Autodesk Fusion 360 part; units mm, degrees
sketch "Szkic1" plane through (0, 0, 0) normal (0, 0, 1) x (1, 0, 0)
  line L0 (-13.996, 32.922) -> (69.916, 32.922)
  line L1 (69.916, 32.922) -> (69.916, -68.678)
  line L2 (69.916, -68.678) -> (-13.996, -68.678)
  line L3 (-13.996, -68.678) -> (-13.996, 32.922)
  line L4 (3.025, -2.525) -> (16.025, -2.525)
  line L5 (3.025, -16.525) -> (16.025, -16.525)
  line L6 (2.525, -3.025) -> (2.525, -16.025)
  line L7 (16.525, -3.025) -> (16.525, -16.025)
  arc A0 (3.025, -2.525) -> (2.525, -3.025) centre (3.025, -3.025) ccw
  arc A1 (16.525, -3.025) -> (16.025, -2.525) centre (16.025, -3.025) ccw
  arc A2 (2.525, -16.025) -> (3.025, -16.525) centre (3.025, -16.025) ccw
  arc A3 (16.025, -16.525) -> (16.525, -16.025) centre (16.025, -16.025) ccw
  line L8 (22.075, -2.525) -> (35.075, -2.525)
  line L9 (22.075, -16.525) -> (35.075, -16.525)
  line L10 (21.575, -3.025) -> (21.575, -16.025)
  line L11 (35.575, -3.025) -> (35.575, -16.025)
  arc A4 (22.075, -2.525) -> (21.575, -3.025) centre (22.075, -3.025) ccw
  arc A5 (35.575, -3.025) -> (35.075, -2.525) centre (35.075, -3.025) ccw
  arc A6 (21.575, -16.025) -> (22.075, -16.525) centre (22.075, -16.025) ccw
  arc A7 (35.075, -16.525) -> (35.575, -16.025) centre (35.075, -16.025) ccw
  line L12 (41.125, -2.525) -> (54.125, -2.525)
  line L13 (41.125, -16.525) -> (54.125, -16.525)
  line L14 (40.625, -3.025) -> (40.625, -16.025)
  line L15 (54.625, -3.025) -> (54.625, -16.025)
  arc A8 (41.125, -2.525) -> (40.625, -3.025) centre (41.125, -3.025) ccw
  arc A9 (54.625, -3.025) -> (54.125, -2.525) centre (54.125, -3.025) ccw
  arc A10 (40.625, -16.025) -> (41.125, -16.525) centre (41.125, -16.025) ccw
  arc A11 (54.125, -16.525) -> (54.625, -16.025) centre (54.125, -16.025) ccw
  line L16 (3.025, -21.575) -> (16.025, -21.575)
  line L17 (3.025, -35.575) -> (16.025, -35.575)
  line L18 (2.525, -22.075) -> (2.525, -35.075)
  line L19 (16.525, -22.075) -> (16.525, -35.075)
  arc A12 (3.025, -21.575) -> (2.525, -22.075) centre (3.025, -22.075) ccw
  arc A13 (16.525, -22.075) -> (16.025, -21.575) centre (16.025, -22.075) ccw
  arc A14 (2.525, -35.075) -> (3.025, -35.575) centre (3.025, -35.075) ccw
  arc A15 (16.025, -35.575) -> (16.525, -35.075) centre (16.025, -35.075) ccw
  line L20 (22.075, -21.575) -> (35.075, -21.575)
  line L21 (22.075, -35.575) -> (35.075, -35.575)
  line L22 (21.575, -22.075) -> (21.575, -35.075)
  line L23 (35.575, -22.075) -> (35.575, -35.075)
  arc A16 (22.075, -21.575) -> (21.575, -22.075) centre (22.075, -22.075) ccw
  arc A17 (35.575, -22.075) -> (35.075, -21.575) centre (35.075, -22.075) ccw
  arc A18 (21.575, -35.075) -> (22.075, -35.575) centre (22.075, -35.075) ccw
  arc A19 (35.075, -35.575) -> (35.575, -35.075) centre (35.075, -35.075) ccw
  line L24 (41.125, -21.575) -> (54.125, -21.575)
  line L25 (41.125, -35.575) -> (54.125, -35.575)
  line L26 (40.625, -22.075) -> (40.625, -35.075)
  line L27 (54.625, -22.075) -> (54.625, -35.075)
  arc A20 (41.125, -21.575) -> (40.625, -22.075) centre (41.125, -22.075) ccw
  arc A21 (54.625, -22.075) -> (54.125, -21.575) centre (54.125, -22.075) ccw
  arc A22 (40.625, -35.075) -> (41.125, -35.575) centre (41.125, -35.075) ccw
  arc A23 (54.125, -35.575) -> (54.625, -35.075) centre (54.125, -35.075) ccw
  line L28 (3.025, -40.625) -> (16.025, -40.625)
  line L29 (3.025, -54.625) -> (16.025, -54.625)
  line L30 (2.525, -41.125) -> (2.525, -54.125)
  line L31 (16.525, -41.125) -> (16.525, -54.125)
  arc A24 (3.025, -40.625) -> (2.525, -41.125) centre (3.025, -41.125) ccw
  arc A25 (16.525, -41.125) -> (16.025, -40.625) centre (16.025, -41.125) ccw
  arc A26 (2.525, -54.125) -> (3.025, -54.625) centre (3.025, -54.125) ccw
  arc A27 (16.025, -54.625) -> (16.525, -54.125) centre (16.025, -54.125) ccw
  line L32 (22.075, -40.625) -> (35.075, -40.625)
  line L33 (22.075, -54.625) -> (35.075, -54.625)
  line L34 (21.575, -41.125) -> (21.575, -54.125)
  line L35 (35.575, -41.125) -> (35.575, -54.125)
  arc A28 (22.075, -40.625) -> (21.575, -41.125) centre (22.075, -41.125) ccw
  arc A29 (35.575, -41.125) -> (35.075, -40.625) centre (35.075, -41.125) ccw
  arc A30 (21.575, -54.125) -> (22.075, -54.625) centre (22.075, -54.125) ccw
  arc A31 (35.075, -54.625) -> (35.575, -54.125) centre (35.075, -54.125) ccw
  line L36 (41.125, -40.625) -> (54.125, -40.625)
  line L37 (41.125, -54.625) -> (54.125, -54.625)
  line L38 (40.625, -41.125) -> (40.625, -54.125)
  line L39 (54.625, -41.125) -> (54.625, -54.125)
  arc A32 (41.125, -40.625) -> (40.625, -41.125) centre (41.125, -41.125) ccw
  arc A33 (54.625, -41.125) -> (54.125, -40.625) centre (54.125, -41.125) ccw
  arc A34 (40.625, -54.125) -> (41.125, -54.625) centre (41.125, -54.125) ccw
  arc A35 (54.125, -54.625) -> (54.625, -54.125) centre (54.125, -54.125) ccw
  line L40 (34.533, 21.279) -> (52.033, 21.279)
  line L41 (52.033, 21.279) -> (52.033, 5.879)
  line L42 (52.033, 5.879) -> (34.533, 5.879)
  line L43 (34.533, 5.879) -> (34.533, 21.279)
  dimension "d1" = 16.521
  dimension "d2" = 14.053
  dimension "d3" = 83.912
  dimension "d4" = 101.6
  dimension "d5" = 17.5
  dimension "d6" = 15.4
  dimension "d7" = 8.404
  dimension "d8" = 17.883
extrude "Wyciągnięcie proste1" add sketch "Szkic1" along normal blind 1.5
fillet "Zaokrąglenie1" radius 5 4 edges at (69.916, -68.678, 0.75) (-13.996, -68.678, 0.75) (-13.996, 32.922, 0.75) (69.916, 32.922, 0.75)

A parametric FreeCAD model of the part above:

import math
import FreeCAD as App
import Part
import Sketcher

V = App.Vector
Q = App.Units.Quantity


def edges_at(feature, points):
    """Names of the edges that pass closest to the given points."""
    edges = feature.Shape.Edges
    near = lambda p: min(range(len(edges)), key=lambda i: edges[i].distToShape(Part.Vertex(*p))[0])
    return sorted({f"Edge{near(p) + 1}" for p in points})


def add_polygon(sketch, points):
    """Adds a closed chain of lines whose ends are joined by coincident constraints."""
    first, n = sketch.GeometryCount, len(points)
    for a, b in zip(points, points[1:] + points[:1]):
        sketch.addGeometry(Part.LineSegment(App.Vector(*a, 0), App.Vector(*b, 0)), False)
    for i in range(n):
        sketch.addConstraint(Sketcher.Constraint("Coincident", first + i, 2, first + (i + 1) % n, 1))

doc = App.newDocument("Part")
body = doc.addObject("PartDesign::Body", "Body")

sketch1 = body.newObject("Sketcher::SketchObject", "Sketch")
sketch1.AttachmentSupport = (doc.getObject("XY_Plane"), [""])
sketch1.MapMode = "FlatFace"
add_polygon(sketch1, [(69.9, 32.9), (-14, 32.9), (-14, -68.7), (69.9, -68.7)])
sketch1.addGeometry(Part.ArcOfCircle(Part.Circle(V(3, -41.1, 0), V(0, 0, 1), 0.5), math.radians(90), math.radians(180)), False)
sketch1.addGeometry(Part.LineSegment(V(3, -40.6, 0), V(16, -40.6, 0)), False)
sketch1.addGeometry(Part.ArcOfCircle(Part.Circle(V(16, -41.1, 0), V(0, 0, 1), 0.5), math.radians(0), math.radians(90)), False)
sketch1.addGeometry(Part.LineSegment(V(16.5, -41.1, 0), V(16.5, -54.1, 0)), False)
sketch1.addGeometry(Part.ArcOfCircle(Part.Circle(V(16, -54.1, 0), V(0, 0, 1), 0.5), math.radians(-90), math.radians(0)), False)
sketch1.addGeometry(Part.LineSegment(V(16, -54.6, 0), V(3, -54.6, 0)), False)
sketch1.addGeometry(Part.ArcOfCircle(Part.Circle(V(3, -54.1, 0), V(0, 0, 1), 0.5), math.radians(180), math.radians(270)), False)
sketch1.addGeometry(Part.LineSegment(V(2.5, -54.1, 0), V(2.5, -41.1, 0)), False)
sketch1.addGeometry(Part.ArcOfCircle(Part.Circle(V(3, -22.1, 0), V(0, 0, 1), 0.5), math.radians(90), math.radians(180)), False)
sketch1.addGeometry(Part.LineSegment(V(3, -21.6, 0), V(16, -21.6, 0)), False)
sketch1.addGeometry(Part.ArcOfCircle(Part.Circle(V(16, -22.1, 0), V(0, 0, 1), 0.5), math.radians(0), math.radians(90)), False)
sketch1.addGeometry(Part.LineSegment(V(16.5, -22.1, 0), V(16.5, -35.1, 0)), False)
sketch1.addGeometry(Part.ArcOfCircle(Part.Circle(V(16, -35.1, 0), V(0, 0, 1), 0.5), math.radians(-90), math.radians(0)), False)
sketch1.addGeometry(Part.LineSegment(V(16, -35.6, 0), V(3, -35.6, 0)), False)
sketch1.addGeometry(Part.ArcOfCircle(Part.Circle(V(3, -35.1, 0), V(0, 0, 1), 0.5), math.radians(180), math.radians(270)), False)
sketch1.addGeometry(Part.LineSegment(V(2.5, -35.1, 0), V(2.5, -22.1, 0)), False)
sketch1.addGeometry(Part.ArcOfCircle(Part.Circle(V(22.1, -41.1, 0), V(0, 0, 1), 0.5), math.radians(90), math.radians(180)), False)
sketch1.addGeometry(Part.LineSegment(V(22.1, -40.6, 0), V(35.1, -40.6, 0)), False)
sketch1.addGeometry(Part.ArcOfCircle(Part.Circle(V(35.1, -41.1, 0), V(0, 0, 1), 0.5), math.radians(0), math.radians(90)), False)
sketch1.addGeometry(Part.LineSegment(V(35.6, -41.1, 0), V(35.6, -54.1, 0)), False)
sketch1.addGeometry(Part.ArcOfCircle(Part.Circle(V(35.1, -54.1, 0), V(0, 0, 1), 0.5), math.radians(-90), math.radians(0)), False)
sketch1.addGeometry(Part.LineSegment(V(35.1, -54.6, 0), V(22.1, -54.6, 0)), False)
sketch1.addGeometry(Part.ArcOfCircle(Part.Circle(V(22.1, -54.1, 0), V(0, 0, 1), 0.5), math.radians(180), math.radians(270)), False)
sketch1.addGeometry(Part.LineSegment(V(21.6, -54.1, 0), V(21.6, -41.1, 0)), False)
sketch1.addGeometry(Part.ArcOfCircle(Part.Circle(V(41.1, -41.1, 0), V(0, 0, 1), 0.5), math.radians(90), math.radians(180)), False)
sketch1.addGeometry(Part.LineSegment(V(41.1, -40.6, 0), V(54.1, -40.6, 0)), False)
sketch1.addGeometry(Part.ArcOfCircle(Part.Circle(V(54.1, -41.1, 0), V(0, 0, 1), 0.5), math.radians(0), math.radians(90)), False)
sketch1.addGeometry(Part.LineSegment(V(54.6, -41.1, 0), V(54.6, -54.1, 0)), False)
sketch1.addGeometry(Part.ArcOfCircle(Part.Circle(V(54.1, -54.1, 0), V(0, 0, 1), 0.5), math.radians(-90), math.radians(0)), False)
sketch1.addGeometry(Part.LineSegment(V(54.1, -54.6, 0), V(41.1, -54.6, 0)), False)
sketch1.addGeometry(Part.ArcOfCircle(Part.Circle(V(41.1, -54.1, 0), V(0, 0, 1), 0.5), math.radians(180), math.radians(270)), False)
sketch1.addGeometry(Part.LineSegment(V(40.6, -54.1, 0), V(40.6, -41.1, 0)), False)
sketch1.addGeometry(Part.ArcOfCircle(Part.Circle(V(22.1, -22.1, 0), V(0, 0, 1), 0.5), math.radians(90), math.radians(180)), False)
sketch1.addGeometry(Part.LineSegment(V(22.1, -21.6, 0), V(35.1, -21.6, 0)), False)
sketch1.addGeometry(Part.ArcOfCircle(Part.Circle(V(35.1, -22.1, 0), V(0, 0, 1), 0.5), math.radians(0), math.radians(90)), False)
sketch1.addGeometry(Part.LineSegment(V(35.6, -22.1, 0), V(35.6, -35.1, 0)), False)
sketch1.addGeometry(Part.ArcOfCircle(Part.Circle(V(35.1, -35.1, 0), V(0, 0, 1), 0.5), math.radians(-90), math.radians(0)), False)
sketch1.addGeometry(Part.LineSegment(V(35.1, -35.6, 0), V(22.1, -35.6, 0)), False)
sketch1.addGeometry(Part.ArcOfCircle(Part.Circle(V(22.1, -35.1, 0), V(0, 0, 1), 0.5), math.radians(180), math.radians(270)), False)
sketch1.addGeometry(Part.LineSegment(V(21.6, -35.1, 0), V(21.6, -22.1, 0)), False)
sketch1.addGeometry(Part.ArcOfCircle(Part.Circle(V(41.1, -22.1, 0), V(0, 0, 1), 0.5), math.radians(90), math.radians(180)), False)
sketch1.addGeometry(Part.LineSegment(V(41.1, -21.6, 0), V(54.1, -21.6, 0)), False)
sketch1.addGeometry(Part.ArcOfCircle(Part.Circle(V(54.1, -22.1, 0), V(0, 0, 1), 0.5), math.radians(0), math.radians(90)), False)
sketch1.addGeometry(Part.LineSegment(V(54.6, -22.1, 0), V(54.6, -35.1, 0)), False)
sketch1.addGeometry(Part.ArcOfCircle(Part.Circle(V(54.1, -35.1, 0), V(0, 0, 1), 0.5), math.radians(-90), math.radians(0)), False)
sketch1.addGeometry(Part.LineSegment(V(54.1, -35.6, 0), V(41.1, -35.6, 0)), False)
sketch1.addGeometry(Part.ArcOfCircle(Part.Circle(V(41.1, -35.1, 0), V(0, 0, 1), 0.5), math.radians(180), math.radians(270)), False)
sketch1.addGeometry(Part.LineSegment(V(40.6, -35.1, 0), V(40.6, -22.1, 0)), False)
sketch1.addGeometry(Part.ArcOfCircle(Part.Circle(V(3, -3, 0), V(0, 0, 1), 0.5), math.radians(90), math.radians(180)), False)
sketch1.addGeometry(Part.LineSegment(V(3, -2.5, 0), V(16, -2.5, 0)), False)
sketch1.addGeometry(Part.ArcOfCircle(Part.Circle(V(16, -3, 0), V(0, 0, 1), 0.5), math.radians(0), math.radians(90)), False)
sketch1.addGeometry(Part.LineSegment(V(16.5, -3, 0), V(16.5, -16, 0)), False)
sketch1.addGeometry(Part.ArcOfCircle(Part.Circle(V(16, -16, 0), V(0, 0, 1), 0.5), math.radians(-90), math.radians(0)), False)
sketch1.addGeometry(Part.LineSegment(V(16, -16.5, 0), V(3, -16.5, 0)), False)
sketch1.addGeometry(Part.ArcOfCircle(Part.Circle(V(3, -16, 0), V(0, 0, 1), 0.5), math.radians(180), math.radians(270)), False)
sketch1.addGeometry(Part.LineSegment(V(2.5, -16, 0), V(2.5, -3, 0)), False)
sketch1.addGeometry(Part.ArcOfCircle(Part.Circle(V(22.1, -3, 0), V(0, 0, 1), 0.5), math.radians(90), math.radians(180)), False)
sketch1.addGeometry(Part.LineSegment(V(22.1, -2.5, 0), V(35.1, -2.5, 0)), False)
sketch1.addGeometry(Part.ArcOfCircle(Part.Circle(V(35.1, -3, 0), V(0, 0, 1), 0.5), math.radians(0), math.radians(90)), False)
sketch1.addGeometry(Part.LineSegment(V(35.6, -3, 0), V(35.6, -16, 0)), False)
sketch1.addGeometry(Part.ArcOfCircle(Part.Circle(V(35.1, -16, 0), V(0, 0, 1), 0.5), math.radians(-90), math.radians(0)), False)
sketch1.addGeometry(Part.LineSegment(V(35.1, -16.5, 0), V(22.1, -16.5, 0)), False)
sketch1.addGeometry(Part.ArcOfCircle(Part.Circle(V(22.1, -16, 0), V(0, 0, 1), 0.5), math.radians(180), math.radians(270)), False)
sketch1.addGeometry(Part.LineSegment(V(21.6, -16, 0), V(21.6, -3, 0)), False)
sketch1.addGeometry(Part.ArcOfCircle(Part.Circle(V(41.1, -3, 0), V(0, 0, 1), 0.5), math.radians(90), math.radians(180)), False)
sketch1.addGeometry(Part.LineSegment(V(41.1, -2.5, 0), V(54.1, -2.5, 0)), False)
sketch1.addGeometry(Part.ArcOfCircle(Part.Circle(V(54.1, -3, 0), V(0, 0, 1), 0.5), math.radians(0), math.radians(90)), False)
sketch1.addGeometry(Part.LineSegment(V(54.6, -3, 0), V(54.6, -16, 0)), False)
sketch1.addGeometry(Part.ArcOfCircle(Part.Circle(V(54.1, -16, 0), V(0, 0, 1), 0.5), math.radians(-90), math.radians(0)), False)
sketch1.addGeometry(Part.LineSegment(V(54.1, -16.5, 0), V(41.1, -16.5, 0)), False)
sketch1.addGeometry(Part.ArcOfCircle(Part.Circle(V(41.1, -16, 0), V(0, 0, 1), 0.5), math.radians(180), math.radians(270)), False)
sketch1.addGeometry(Part.LineSegment(V(40.6, -16, 0), V(40.6, -3, 0)), False)
add_polygon(sketch1, [(34.5, 5.9), (34.5, 21.3), (52, 21.3), (52, 5.9)])
sketch1.addConstraint([
    Sketcher.Constraint("Tangent", 4, 1, 5, 1),
    Sketcher.Constraint("Tangent", 5, 2, 6, 2),
    Sketcher.Constraint("Tangent", 6, 1, 7, 1),
    Sketcher.Constraint("Tangent", 7, 2, 8, 2),
    Sketcher.Constraint("Tangent", 8, 1, 9, 1),
    Sketcher.Constraint("Tangent", 9, 2, 10, 2),
    Sketcher.Constraint("Tangent", 10, 1, 11, 1),
    Sketcher.Constraint("Tangent", 11, 2, 4, 2),
    Sketcher.Constraint("Tangent", 12, 1, 13, 1),
    Sketcher.Constraint("Tangent", 13, 2, 14, 2),
    Sketcher.Constraint("Tangent", 14, 1, 15, 1),
    Sketcher.Constraint("Tangent", 15, 2, 16, 2),
    Sketcher.Constraint("Tangent", 16, 1, 17, 1),
    Sketcher.Constraint("Tangent", 17, 2, 18, 2),
    Sketcher.Constraint("Tangent", 18, 1, 19, 1),
    Sketcher.Constraint("Tangent", 19, 2, 12, 2),
    Sketcher.Constraint("Tangent", 20, 1, 21, 1),
    Sketcher.Constraint("Tangent", 21, 2, 22, 2),
    Sketcher.Constraint("Tangent", 22, 1, 23, 1),
    Sketcher.Constraint("Tangent", 23, 2, 24, 2),
    Sketcher.Constraint("Tangent", 24, 1, 25, 1),
    Sketcher.Constraint("Tangent", 25, 2, 26, 2),
    Sketcher.Constraint("Tangent", 26, 1, 27, 1),
    Sketcher.Constraint("Tangent", 27, 2, 20, 2),
    Sketcher.Constraint("Tangent", 28, 1, 29, 1),
    Sketcher.Constraint("Tangent", 29, 2, 30, 2),
    Sketcher.Constraint("Tangent", 30, 1, 31, 1),
    Sketcher.Constraint("Tangent", 31, 2, 32, 2),
    Sketcher.Constraint("Tangent", 32, 1, 33, 1),
    Sketcher.Constraint("Tangent", 33, 2, 34, 2),
    Sketcher.Constraint("Tangent", 34, 1, 35, 1),
    Sketcher.Constraint("Tangent", 35, 2, 28, 2),
    Sketcher.Constraint("Tangent", 36, 1, 37, 1),
    Sketcher.Constraint("Tangent", 37, 2, 38, 2),
    Sketcher.Constraint("Tangent", 38, 1, 39, 1),
    Sketcher.Constraint("Tangent", 39, 2, 40, 2),
    Sketcher.Constraint("Tangent", 40, 1, 41, 1),
    Sketcher.Constraint("Tangent", 41, 2, 42, 2),
    Sketcher.Constraint("Tangent", 42, 1, 43, 1),
    Sketcher.Constraint("Tangent", 43, 2, 36, 2),
    Sketcher.Constraint("Tangent", 44, 1, 45, 1),
    Sketcher.Constraint("Tangent", 45, 2, 46, 2),
    Sketcher.Constraint("Tangent", 46, 1, 47, 1),
    Sketcher.Constraint("Tangent", 47, 2, 48, 2),
    Sketcher.Constraint("Tangent", 48, 1, 49, 1),
    Sketcher.Constraint("Tangent", 49, 2, 50, 2),
    Sketcher.Constraint("Tangent", 50, 1, 51, 1),
    Sketcher.Constraint("Tangent", 51, 2, 44, 2),
    Sketcher.Constraint("Tangent", 52, 1, 53, 1),
    Sketcher.Constraint("Tangent", 53, 2, 54, 2),
    Sketcher.Constraint("Tangent", 54, 1, 55, 1),
    Sketcher.Constraint("Tangent", 55, 2, 56, 2),
    Sketcher.Constraint("Tangent", 56, 1, 57, 1),
    Sketcher.Constraint("Tangent", 57, 2, 58, 2),
    Sketcher.Constraint("Tangent", 58, 1, 59, 1),
    Sketcher.Constraint("Tangent", 59, 2, 52, 2),
    Sketcher.Constraint("Tangent", 60, 1, 61, 1),
    Sketcher.Constraint("Tangent", 61, 2, 62, 2),
    Sketcher.Constraint("Tangent", 62, 1, 63, 1),
    Sketcher.Constraint("Tangent", 63, 2, 64, 2),
    Sketcher.Constraint("Tangent", 64, 1, 65, 1),
    Sketcher.Constraint("Tangent", 65, 2, 66, 2),
    Sketcher.Constraint("Tangent", 66, 1, 67, 1),
    Sketcher.Constraint("Tangent", 67, 2, 60, 2),
    Sketcher.Constraint("Tangent", 68, 1, 69, 1),
    Sketcher.Constraint("Tangent", 69, 2, 70, 2),
    Sketcher.Constraint("Tangent", 70, 1, 71, 1),
    Sketcher.Constraint("Tangent", 71, 2, 72, 2),
    Sketcher.Constraint("Tangent", 72, 1, 73, 1),
    Sketcher.Constraint("Tangent", 73, 2, 74, 2),
    Sketcher.Constraint("Tangent", 74, 1, 75, 1),
    Sketcher.Constraint("Tangent", 75, 2, 68, 2),
    Sketcher.Constraint("Horizontal", 0),
    Sketcher.Constraint("Vertical", 1),
    Sketcher.Constraint("Horizontal", 2),
    Sketcher.Constraint("Vertical", 3),
    Sketcher.Constraint("Horizontal", 5),
    Sketcher.Constraint("Vertical", 7),
    Sketcher.Constraint("Horizontal", 9),
    Sketcher.Constraint("Vertical", 11),
    Sketcher.Constraint("Horizontal", 13),
    Sketcher.Constraint("Vertical", 15),
    Sketcher.Constraint("Horizontal", 17),
    Sketcher.Constraint("Vertical", 19),
    Sketcher.Constraint("Horizontal", 21),
    Sketcher.Constraint("Vertical", 23),
    Sketcher.Constraint("Horizontal", 25),
    Sketcher.Constraint("Vertical", 27),
    Sketcher.Constraint("Horizontal", 29),
    Sketcher.Constraint("Vertical", 31),
    Sketcher.Constraint("Horizontal", 33),
    Sketcher.Constraint("Vertical", 35),
    Sketcher.Constraint("Horizontal", 37),
    Sketcher.Constraint("Vertical", 39),
    Sketcher.Constraint("Horizontal", 41),
    Sketcher.Constraint("Vertical", 43),
    Sketcher.Constraint("Horizontal", 45),
    Sketcher.Constraint("Vertical", 47),
    Sketcher.Constraint("Horizontal", 49),
    Sketcher.Constraint("Vertical", 51),
    Sketcher.Constraint("Horizontal", 53),
    Sketcher.Constraint("Vertical", 55),
    Sketcher.Constraint("Horizontal", 57),
    Sketcher.Constraint("Vertical", 59),
    Sketcher.Constraint("Horizontal", 61),
    Sketcher.Constraint("Vertical", 63),
    Sketcher.Constraint("Horizontal", 65),
    Sketcher.Constraint("Vertical", 67),
    Sketcher.Constraint("Horizontal", 69),
    Sketcher.Constraint("Vertical", 71),
    Sketcher.Constraint("Horizontal", 73),
    Sketcher.Constraint("Vertical", 75),
    Sketcher.Constraint("Vertical", 76),
    Sketcher.Constraint("Horizontal", 77),
    Sketcher.Constraint("Vertical", 78),
    Sketcher.Constraint("Horizontal", 79),
    Sketcher.Constraint("Equal", 4, 6),
    Sketcher.Constraint("Equal", 6, 8),
    Sketcher.Constraint("Equal", 8, 10),
    Sketcher.Constraint("Equal", 10, 12),
    Sketcher.Constraint("Equal", 12, 14),
    Sketcher.Constraint("Equal", 14, 16),
    Sketcher.Constraint("Equal", 16, 18),
    Sketcher.Constraint("Equal", 18, 20),
    Sketcher.Constraint("Equal", 20, 22),
    Sketcher.Constraint("Equal", 22, 24),
    Sketcher.Constraint("Equal", 24, 26),
    Sketcher.Constraint("Equal", 26, 28),
    Sketcher.Constraint("Equal", 28, 30),
    Sketcher.Constraint("Equal", 30, 32),
    Sketcher.Constraint("Equal", 32, 34),
    Sketcher.Constraint("Equal", 34, 36),
    Sketcher.Constraint("Equal", 36, 38),
    Sketcher.Constraint("Equal", 38, 40),
    Sketcher.Constraint("Equal", 40, 42),
    Sketcher.Constraint("Equal", 42, 44),
    Sketcher.Constraint("Equal", 44, 46),
    Sketcher.Constraint("Equal", 46, 48),
    Sketcher.Constraint("Equal", 48, 50),
    Sketcher.Constraint("Equal", 50, 52),
    Sketcher.Constraint("Equal", 52, 54),
    Sketcher.Constraint("Equal", 54, 56),
    Sketcher.Constraint("Equal", 56, 58),
    Sketcher.Constraint("Equal", 58, 60),
    Sketcher.Constraint("Equal", 60, 62),
    Sketcher.Constraint("Equal", 62, 64),
    Sketcher.Constraint("Equal", 64, 66),
    Sketcher.Constraint("Equal", 66, 68),
    Sketcher.Constraint("Equal", 68, 70),
    Sketcher.Constraint("Equal", 70, 72),
    Sketcher.Constraint("Equal", 72, 74),
    Sketcher.Constraint("Horizontal", 6, 3, 20, 3),
    Sketcher.Constraint("Horizontal", 10, 3, 24, 3),
    Sketcher.Constraint("Horizontal", 22, 3, 28, 3),
    Sketcher.Constraint("Horizontal", 26, 3, 32, 3),
    Sketcher.Constraint("Horizontal", 14, 3, 36, 3),
    Sketcher.Constraint("Horizontal", 18, 3, 40, 3),
    Sketcher.Constraint("Horizontal", 38, 3, 44, 3),
    Sketcher.Constraint("Horizontal", 42, 3, 48, 3),
    Sketcher.Constraint("Horizontal", 54, 3, 60, 3),
    Sketcher.Constraint("Horizontal", 58, 3, 64, 3),
    Sketcher.Constraint("Horizontal", 62, 3, 68, 3),
    Sketcher.Constraint("Horizontal", 66, 3, 72, 3),
    Sketcher.Constraint("Vertical", 10, 3, 12, 3),
    Sketcher.Constraint("Vertical", 8, 3, 14, 3),
    Sketcher.Constraint("Vertical", 26, 3, 36, 3),
    Sketcher.Constraint("Vertical", 24, 3, 38, 3),
    Sketcher.Constraint("Vertical", 34, 3, 44, 3),
    Sketcher.Constraint("Vertical", 32, 3, 46, 3),
    Sketcher.Constraint("Vertical", 18, 3, 52, 3),
    Sketcher.Constraint("Vertical", 16, 3, 54, 3),
    Sketcher.Constraint("Vertical", 42, 3, 60, 3),
    Sketcher.Constraint("Vertical", 40, 3, 62, 3),
    Sketcher.Constraint("Vertical", 50, 3, 68, 3),
    Sketcher.Constraint("Vertical", 48, 3, 70, 3),
    Sketcher.Constraint("Equal", 17, 21),
    Sketcher.Constraint("Equal", 25, 29),
    Sketcher.Constraint("Equal", 73, 7),
    Sketcher.Constraint("Equal", 11, 15),
    Sketcher.Constraint("Equal", 51, 55),
    Sketcher.Constraint("DistanceX", 77, 1, 77, 2, Q("17.5 mm")),
    Sketcher.Constraint("DistanceY", 1, 2, 1, 1, Q("101.6 mm")),
    Sketcher.Constraint("DistanceY", 76, 1, 76, 2, Q("15.4 mm")),
    Sketcher.Constraint("Radius", 4, Q("0.5 mm")),
    Sketcher.Constraint("DistanceX", 0, 2, 0, 1, Q("83.912 mm")),
    Sketcher.Constraint("DistanceX", 5, 1, 5, 2, Q("13 mm")),
    Sketcher.Constraint("DistanceX", -1, 1, 4, 3, Q("3.025 mm")),
    Sketcher.Constraint("DistanceY", 4, 3, -1, 1, Q("41.125 mm")),
    Sketcher.Constraint("DistanceY", 12, 3, -1, 1, Q("22.075 mm")),
    Sketcher.Constraint("DistanceX", -1, 1, 20, 3, Q("22.075 mm")),
    Sketcher.Constraint("DistanceX", -1, 1, 28, 3, Q("41.125 mm")),
    Sketcher.Constraint("DistanceY", 52, 3, -1, 1, Q("3.025 mm")),
    Sketcher.Constraint("DistanceX", 0, 2, -1, 1, Q("13.996 mm")),
    Sketcher.Constraint("DistanceY", -1, 1, 0, 2, Q("32.922 mm")),
    Sketcher.Constraint("DistanceX", -1, 1, 76, 2, Q("34.533 mm")),
    Sketcher.Constraint("DistanceY", -1, 1, 76, 2, Q("21.279 mm")),
])
pad1 = body.newObject("PartDesign::Pad", "Pad")
pad1.Profile = sketch1
pad1.Length = 1.5
doc.recompute()

fillet = body.newObject("PartDesign::Fillet", "Fillet")
fillet.Base = (pad1, edges_at(pad1, [
    (69.916, -68.678, 0.75),
    (-13.996, -68.678, 0.75),
    (-13.996, 32.922, 0.75),
    (69.916, 32.922, 0.75),
]))
fillet.Radius = 5

doc.recompute()
